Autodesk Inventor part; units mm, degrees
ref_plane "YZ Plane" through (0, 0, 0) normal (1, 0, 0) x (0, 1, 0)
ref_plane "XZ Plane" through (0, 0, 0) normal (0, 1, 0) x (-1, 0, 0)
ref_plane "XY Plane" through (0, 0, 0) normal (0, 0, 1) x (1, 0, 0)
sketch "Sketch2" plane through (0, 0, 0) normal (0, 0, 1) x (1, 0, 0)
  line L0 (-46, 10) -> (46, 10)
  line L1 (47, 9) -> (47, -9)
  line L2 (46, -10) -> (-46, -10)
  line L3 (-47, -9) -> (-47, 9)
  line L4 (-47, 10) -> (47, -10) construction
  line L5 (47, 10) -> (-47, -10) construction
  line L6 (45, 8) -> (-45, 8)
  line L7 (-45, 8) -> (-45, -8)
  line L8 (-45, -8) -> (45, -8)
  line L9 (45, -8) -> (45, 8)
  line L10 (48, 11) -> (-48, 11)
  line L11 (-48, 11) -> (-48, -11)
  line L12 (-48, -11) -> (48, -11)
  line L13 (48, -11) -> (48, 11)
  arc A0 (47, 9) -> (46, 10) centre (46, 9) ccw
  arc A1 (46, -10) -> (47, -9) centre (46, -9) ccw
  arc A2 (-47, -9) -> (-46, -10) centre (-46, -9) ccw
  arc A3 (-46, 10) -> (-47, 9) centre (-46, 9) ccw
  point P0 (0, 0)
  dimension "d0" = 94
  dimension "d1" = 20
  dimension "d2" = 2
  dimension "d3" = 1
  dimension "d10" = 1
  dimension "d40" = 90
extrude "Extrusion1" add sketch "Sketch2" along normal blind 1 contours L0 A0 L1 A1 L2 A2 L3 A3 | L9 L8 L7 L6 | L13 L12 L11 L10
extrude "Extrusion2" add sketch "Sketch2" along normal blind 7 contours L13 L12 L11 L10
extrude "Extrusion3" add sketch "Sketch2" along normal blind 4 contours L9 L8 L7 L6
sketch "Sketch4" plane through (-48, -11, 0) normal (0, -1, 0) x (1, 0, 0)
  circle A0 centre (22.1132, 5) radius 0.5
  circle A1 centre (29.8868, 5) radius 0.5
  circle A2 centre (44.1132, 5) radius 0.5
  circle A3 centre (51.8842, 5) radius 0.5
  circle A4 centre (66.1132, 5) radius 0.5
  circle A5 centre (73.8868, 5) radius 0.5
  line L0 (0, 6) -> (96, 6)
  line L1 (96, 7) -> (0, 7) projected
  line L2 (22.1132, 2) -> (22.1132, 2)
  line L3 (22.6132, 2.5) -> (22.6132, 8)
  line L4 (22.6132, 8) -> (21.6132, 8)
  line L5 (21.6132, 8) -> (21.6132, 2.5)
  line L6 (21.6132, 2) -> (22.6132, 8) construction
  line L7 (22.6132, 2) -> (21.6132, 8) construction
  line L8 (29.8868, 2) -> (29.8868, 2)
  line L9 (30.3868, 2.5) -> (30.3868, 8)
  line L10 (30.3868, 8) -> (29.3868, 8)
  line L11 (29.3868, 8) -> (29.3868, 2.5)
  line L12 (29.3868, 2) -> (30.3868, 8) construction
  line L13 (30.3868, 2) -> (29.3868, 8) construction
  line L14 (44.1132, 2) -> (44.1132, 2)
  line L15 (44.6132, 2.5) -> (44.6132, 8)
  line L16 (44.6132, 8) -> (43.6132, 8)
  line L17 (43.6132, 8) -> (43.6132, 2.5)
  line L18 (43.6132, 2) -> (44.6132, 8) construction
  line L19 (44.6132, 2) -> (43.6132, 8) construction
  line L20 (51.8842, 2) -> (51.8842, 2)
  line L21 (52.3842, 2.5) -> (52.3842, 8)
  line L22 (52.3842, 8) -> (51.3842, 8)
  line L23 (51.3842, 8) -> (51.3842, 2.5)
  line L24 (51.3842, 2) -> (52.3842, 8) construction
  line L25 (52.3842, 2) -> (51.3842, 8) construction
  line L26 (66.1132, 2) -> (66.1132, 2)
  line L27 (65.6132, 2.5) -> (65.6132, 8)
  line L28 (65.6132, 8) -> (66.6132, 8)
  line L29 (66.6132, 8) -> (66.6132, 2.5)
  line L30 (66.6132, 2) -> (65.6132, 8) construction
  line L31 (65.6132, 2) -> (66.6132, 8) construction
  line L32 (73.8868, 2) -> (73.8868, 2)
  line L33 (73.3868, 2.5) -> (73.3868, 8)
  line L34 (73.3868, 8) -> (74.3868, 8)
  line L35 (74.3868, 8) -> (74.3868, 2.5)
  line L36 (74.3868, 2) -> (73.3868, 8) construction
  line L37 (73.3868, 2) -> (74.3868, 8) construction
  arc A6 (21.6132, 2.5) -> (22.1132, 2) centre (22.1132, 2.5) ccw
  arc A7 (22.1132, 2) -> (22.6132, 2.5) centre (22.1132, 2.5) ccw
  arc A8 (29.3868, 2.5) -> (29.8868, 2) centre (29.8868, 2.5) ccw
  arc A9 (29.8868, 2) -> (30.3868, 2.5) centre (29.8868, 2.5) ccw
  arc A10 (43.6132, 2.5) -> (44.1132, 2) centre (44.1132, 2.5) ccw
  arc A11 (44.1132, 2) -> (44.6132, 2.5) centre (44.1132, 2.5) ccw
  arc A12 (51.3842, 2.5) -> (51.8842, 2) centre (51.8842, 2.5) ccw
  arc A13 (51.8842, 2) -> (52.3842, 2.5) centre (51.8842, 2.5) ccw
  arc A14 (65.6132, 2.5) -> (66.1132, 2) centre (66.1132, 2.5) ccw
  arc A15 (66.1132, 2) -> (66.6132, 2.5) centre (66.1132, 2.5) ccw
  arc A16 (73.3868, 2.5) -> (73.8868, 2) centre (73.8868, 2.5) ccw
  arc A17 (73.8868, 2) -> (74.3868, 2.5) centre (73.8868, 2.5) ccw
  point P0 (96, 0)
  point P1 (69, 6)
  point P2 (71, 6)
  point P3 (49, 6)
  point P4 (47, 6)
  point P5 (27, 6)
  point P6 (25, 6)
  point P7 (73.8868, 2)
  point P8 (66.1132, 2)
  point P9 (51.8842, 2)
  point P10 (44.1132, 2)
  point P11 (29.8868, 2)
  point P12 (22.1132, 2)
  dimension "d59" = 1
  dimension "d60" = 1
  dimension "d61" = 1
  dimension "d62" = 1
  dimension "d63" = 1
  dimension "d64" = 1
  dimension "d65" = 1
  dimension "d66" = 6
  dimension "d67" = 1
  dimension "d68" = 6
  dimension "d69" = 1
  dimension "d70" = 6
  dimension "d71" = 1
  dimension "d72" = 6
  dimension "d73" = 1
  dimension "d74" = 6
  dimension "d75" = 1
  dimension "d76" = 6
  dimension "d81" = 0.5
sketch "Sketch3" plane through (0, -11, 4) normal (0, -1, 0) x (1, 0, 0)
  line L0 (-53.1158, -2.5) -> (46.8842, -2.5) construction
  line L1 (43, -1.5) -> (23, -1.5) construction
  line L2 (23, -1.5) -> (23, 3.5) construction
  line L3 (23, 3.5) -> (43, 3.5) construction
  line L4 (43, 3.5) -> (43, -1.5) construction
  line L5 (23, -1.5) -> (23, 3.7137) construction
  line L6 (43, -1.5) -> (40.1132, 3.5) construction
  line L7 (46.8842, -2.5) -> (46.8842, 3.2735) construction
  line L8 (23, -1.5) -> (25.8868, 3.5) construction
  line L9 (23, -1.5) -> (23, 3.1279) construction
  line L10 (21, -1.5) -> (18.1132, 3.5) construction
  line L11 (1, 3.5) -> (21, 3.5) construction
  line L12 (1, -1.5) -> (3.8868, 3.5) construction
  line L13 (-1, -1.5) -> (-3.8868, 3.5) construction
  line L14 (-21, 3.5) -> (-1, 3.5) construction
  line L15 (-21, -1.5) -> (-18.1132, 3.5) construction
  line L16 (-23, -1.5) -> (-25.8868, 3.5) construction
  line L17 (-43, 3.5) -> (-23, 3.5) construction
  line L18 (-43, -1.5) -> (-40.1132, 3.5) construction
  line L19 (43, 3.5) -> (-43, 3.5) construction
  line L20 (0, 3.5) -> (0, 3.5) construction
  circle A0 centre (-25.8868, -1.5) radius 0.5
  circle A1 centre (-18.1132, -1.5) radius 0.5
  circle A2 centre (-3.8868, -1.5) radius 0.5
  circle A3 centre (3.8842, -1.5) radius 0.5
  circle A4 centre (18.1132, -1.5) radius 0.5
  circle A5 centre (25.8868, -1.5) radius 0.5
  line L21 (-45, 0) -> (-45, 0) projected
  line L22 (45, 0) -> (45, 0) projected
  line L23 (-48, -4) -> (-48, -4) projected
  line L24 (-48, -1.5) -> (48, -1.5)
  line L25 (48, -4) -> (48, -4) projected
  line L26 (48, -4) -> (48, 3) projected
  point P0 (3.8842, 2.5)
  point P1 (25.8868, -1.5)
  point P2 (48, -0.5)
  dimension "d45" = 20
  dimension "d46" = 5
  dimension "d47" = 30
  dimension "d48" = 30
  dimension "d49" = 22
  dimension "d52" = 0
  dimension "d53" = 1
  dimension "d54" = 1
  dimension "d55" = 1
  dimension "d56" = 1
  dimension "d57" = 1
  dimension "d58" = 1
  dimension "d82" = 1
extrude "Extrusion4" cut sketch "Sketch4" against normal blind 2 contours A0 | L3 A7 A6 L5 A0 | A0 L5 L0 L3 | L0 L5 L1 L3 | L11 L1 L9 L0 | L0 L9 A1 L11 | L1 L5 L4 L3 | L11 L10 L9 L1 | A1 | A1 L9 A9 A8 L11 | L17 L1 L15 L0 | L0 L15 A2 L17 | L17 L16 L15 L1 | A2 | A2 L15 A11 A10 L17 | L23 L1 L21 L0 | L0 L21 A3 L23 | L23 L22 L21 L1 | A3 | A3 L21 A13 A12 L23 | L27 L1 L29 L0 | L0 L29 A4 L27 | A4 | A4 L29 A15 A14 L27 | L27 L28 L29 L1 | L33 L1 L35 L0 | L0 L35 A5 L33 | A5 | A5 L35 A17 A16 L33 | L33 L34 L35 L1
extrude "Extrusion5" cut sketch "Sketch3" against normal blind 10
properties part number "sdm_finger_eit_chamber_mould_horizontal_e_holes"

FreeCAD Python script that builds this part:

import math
import FreeCAD as App
import Part
import Sketcher

V = App.Vector
Q = App.Units.Quantity

doc = App.newDocument("Part")
params = doc.addObject("Spreadsheet::Sheet", "Params")
for row, (alias, value) in enumerate([
    ("sketch1_width", "96 mm"),
    ("sketch1_height", "22 mm"),
    ("pad1_length", "1 mm"),
    ("sketch2_radius", "1 mm"),
    ("pad2_length", "7 mm"),
    ("sketch3_width", "90 mm"),
    ("sketch3_height", "16 mm"),
    ("pad3_length", "4 mm"),
    ("sketch4_radius", "0.5 mm"),
    ("sketch4_height", "5.5 mm"),
    ("pocket1_length", "2 mm"),
    ("sketch5_diameter", "1 mm"),
    ("pocket2_length", "10 mm"),
], start=1):
    params.set(f"A{row}", alias)
    params.set(f"B{row}", "=" + value)
    params.setAlias(f"B{row}", alias)

body = doc.addObject("PartDesign::Body", "Body")

# Sketch on XY plane
sketch1 = body.newObject("Sketcher::SketchObject", "Sketch")
sketch1.AttachmentSupport = (doc.getObject("XY_Plane"), [""])
sketch1.MapMode = "FlatFace"
sketch1.addGeometry([
    Part.LineSegment(V(48, -11, 0), V(48, 11, 0)),
    Part.LineSegment(V(48, 11, 0), V(-48, 11, 0)),
    Part.LineSegment(V(-48, 11, 0), V(-48, -11, 0)),
    Part.LineSegment(V(-48, -11, 0), V(48, -11, 0)),
], False)
sketch1.addConstraint([
    Sketcher.Constraint("Coincident", 0, 2, 1, 1),
    Sketcher.Constraint("Coincident", 1, 2, 2, 1),
    Sketcher.Constraint("Coincident", 2, 2, 3, 1),
    Sketcher.Constraint("Coincident", 3, 2, 0, 1),
    Sketcher.Constraint("Vertical", 0),
    Sketcher.Constraint("Horizontal", 1),
    Sketcher.Constraint("Vertical", 2),
    Sketcher.Constraint("Horizontal", 3),
    Sketcher.Constraint("Symmetric", 0, 2, 2, 2, -1, 1),
    Sketcher.Constraint("DistanceX", 1, 2, 1, 1, Q("96 mm")),
    Sketcher.Constraint("DistanceY", 0, 1, 0, 2, Q("22 mm")),
])
sketch1.setExpression("Constraints[9]", "Params.sketch1_width")
sketch1.setExpression("Constraints[10]", "Params.sketch1_height")
pad1 = body.newObject("PartDesign::Pad", "Pad")
pad1.Profile = sketch1
pad1.setExpression("Length", "Params.pad1_length")

# Sketch on XY plane
sketch2 = body.newObject("Sketcher::SketchObject", "Sketch001")
sketch2.AttachmentSupport = (doc.getObject("XY_Plane"), [""])
sketch2.MapMode = "FlatFace"
sketch2.addGeometry([
    Part.LineSegment(V(48, -11, 0), V(48, 11, 0)),  # 0
    Part.LineSegment(V(48, 11, 0), V(-48, 11, 0)),  # 1
    Part.LineSegment(V(-48, 11, 0), V(-48, -11, 0)),  # 2
    Part.LineSegment(V(-48, -11, 0), V(48, -11, 0)),  # 3
    Part.ArcOfCircle(Part.Circle(V(-46, 9, 0), V(0, 0, 1), 1), math.radians(90), math.radians(180)),  # 4
    Part.LineSegment(V(-46, 10, 0), V(46, 10, 0)),  # 5
    Part.ArcOfCircle(Part.Circle(V(46, 9, 0), V(0, 0, 1), 1), math.radians(0), math.radians(90)),  # 6
    Part.LineSegment(V(47, 9, 0), V(47, -9, 0)),  # 7
    Part.ArcOfCircle(Part.Circle(V(46, -9, 0), V(0, 0, 1), 1), math.radians(-90), math.radians(0)),  # 8
    Part.LineSegment(V(46, -10, 0), V(-46, -10, 0)),  # 9
    Part.ArcOfCircle(Part.Circle(V(-46, -9, 0), V(0, 0, 1), 1), math.radians(180), math.radians(270)),  # 10
    Part.LineSegment(V(-47, -9, 0), V(-47, 9, 0)),  # 11
], False)
sketch2.addConstraint([
    Sketcher.Constraint("Coincident", 0, 2, 1, 1),
    Sketcher.Constraint("Coincident", 1, 2, 2, 1),
    Sketcher.Constraint("Coincident", 2, 2, 3, 1),
    Sketcher.Constraint("Coincident", 3, 2, 0, 1),
    Sketcher.Constraint("Tangent", 4, 1, 5, 1),
    Sketcher.Constraint("Tangent", 5, 2, 6, 2),
    Sketcher.Constraint("Tangent", 6, 1, 7, 1),
    Sketcher.Constraint("Tangent", 7, 2, 8, 2),
    Sketcher.Constraint("Tangent", 8, 1, 9, 1),
    Sketcher.Constraint("Tangent", 9, 2, 10, 2),
    Sketcher.Constraint("Tangent", 10, 1, 11, 1),
    Sketcher.Constraint("Tangent", 11, 2, 4, 2),
    Sketcher.Constraint("Vertical", 0),
    Sketcher.Constraint("Horizontal", 1),
    Sketcher.Constraint("Vertical", 2),
    Sketcher.Constraint("Horizontal", 3),
    Sketcher.Constraint("Horizontal", 5),
    Sketcher.Constraint("Vertical", 7),
    Sketcher.Constraint("Horizontal", 9),
    Sketcher.Constraint("Vertical", 11),
    Sketcher.Constraint("Equal", 4, 6),
    Sketcher.Constraint("Equal", 6, 8),
    Sketcher.Constraint("Equal", 8, 10),
    Sketcher.Constraint("Symmetric", 4, 3, 8, 3, -1, 1),
    Sketcher.Constraint("Symmetric", 0, 2, 2, 2, -1, 1),
    Sketcher.Constraint("Radius", 4, Q("1 mm")),
    Sketcher.Constraint("DistanceX", 6, 3, 0, 2, Q("2 mm")),
    Sketcher.Constraint("DistanceY", 6, 3, 0, 2, Q("2 mm")),
    Sketcher.Constraint("DistanceY", 8, 3, 0, 2, Q("20 mm")),
    Sketcher.Constraint("DistanceX", 4, 3, 0, 2, Q("94 mm")),
])
sketch2.setExpression("Constraints[25]", "Params.sketch2_radius")
pad2 = body.newObject("PartDesign::Pad", "Pad001")
pad2.Profile = sketch2
pad2.setExpression("Length", "Params.pad2_length")

# Sketch on XY plane
sketch3 = body.newObject("Sketcher::SketchObject", "Sketch002")
sketch3.AttachmentSupport = (doc.getObject("XY_Plane"), [""])
sketch3.MapMode = "FlatFace"
sketch3.addGeometry([
    Part.LineSegment(V(45, -8, 0), V(45, 8, 0)),
    Part.LineSegment(V(45, 8, 0), V(-45, 8, 0)),
    Part.LineSegment(V(-45, 8, 0), V(-45, -8, 0)),
    Part.LineSegment(V(-45, -8, 0), V(45, -8, 0)),
], False)
sketch3.addConstraint([
    Sketcher.Constraint("Coincident", 0, 2, 1, 1),
    Sketcher.Constraint("Coincident", 1, 2, 2, 1),
    Sketcher.Constraint("Coincident", 2, 2, 3, 1),
    Sketcher.Constraint("Coincident", 3, 2, 0, 1),
    Sketcher.Constraint("Vertical", 0),
    Sketcher.Constraint("Horizontal", 1),
    Sketcher.Constraint("Vertical", 2),
    Sketcher.Constraint("Horizontal", 3),
    Sketcher.Constraint("Symmetric", 0, 2, 2, 2, -1, 1),
    Sketcher.Constraint("DistanceX", 1, 2, 1, 1, Q("90 mm")),
    Sketcher.Constraint("DistanceY", 0, 1, 0, 2, Q("16 mm")),
])
sketch3.setExpression("Constraints[9]", "Params.sketch3_width")
sketch3.setExpression("Constraints[10]", "Params.sketch3_height")
pad3 = body.newObject("PartDesign::Pad", "Pad002")
pad3.Profile = sketch3
pad3.setExpression("Length", "Params.pad3_length")

# Sketch on XZ plane
sketch4 = body.newObject("Sketcher::SketchObject", "Sketch003")
sketch4.AttachmentSupport = (doc.getObject("XZ_Plane"), [""])
sketch4.MapMode = "FlatFace"
sketch4.AttachmentOffset = App.Placement(V(0, 0, 11), App.Rotation())
sketch4.addGeometry([
    Part.LineSegment(V(-25.4, 2.5, 0), V(-25.4, 8, 0)),  # 0
    Part.LineSegment(V(-25.4, 8, 0), V(-26.4, 8, 0)),  # 1
    Part.LineSegment(V(-26.4, 8, 0), V(-26.4, 2.5, 0)),  # 2
    Part.ArcOfCircle(Part.Circle(V(-25.9, 2.5, 0), V(0, 0, 1), 0.5), math.radians(180), math.radians(360)),  # 3
    Part.ArcOfCircle(Part.Circle(V(-18.1, 2.5, 0), V(0, 0, 1), 0.5), math.radians(180), math.radians(360)),  # 4
    Part.LineSegment(V(-17.6, 2.5, 0), V(-17.6, 8, 0)),  # 5
    Part.LineSegment(V(-17.6, 8, 0), V(-18.6, 8, 0)),  # 6
    Part.LineSegment(V(-18.6, 8, 0), V(-18.6, 2.5, 0)),  # 7
    Part.ArcOfCircle(Part.Circle(V(-3.9, 2.5, 0), V(0, 0, 1), 0.5), math.radians(180), math.radians(360)),  # 8
    Part.LineSegment(V(-3.4, 2.5, 0), V(-3.4, 8, 0)),  # 9
    Part.LineSegment(V(-3.4, 8, 0), V(-4.4, 8, 0)),  # 10
    Part.LineSegment(V(-4.4, 8, 0), V(-4.4, 2.5, 0)),  # 11
    Part.ArcOfCircle(Part.Circle(V(3.9, 2.5, 0), V(0, 0, 1), 0.5), math.radians(180), math.radians(360)),  # 12
    Part.LineSegment(V(4.4, 2.5, 0), V(4.4, 8, 0)),  # 13
    Part.LineSegment(V(4.4, 8, 0), V(3.4, 8, 0)),  # 14
    Part.LineSegment(V(3.4, 8, 0), V(3.4, 2.5, 0)),  # 15
    Part.ArcOfCircle(Part.Circle(V(18.1, 2.5, 0), V(0, 0, 1), 0.5), math.radians(180), math.radians(360)),  # 16
    Part.LineSegment(V(18.6, 2.5, 0), V(18.6, 8, 0)),  # 17
    Part.LineSegment(V(18.6, 8, 0), V(17.6, 8, 0)),  # 18
    Part.LineSegment(V(17.6, 8, 0), V(17.6, 2.5, 0)),  # 19
    Part.ArcOfCircle(Part.Circle(V(25.9, 2.5, 0), V(0, 0, 1), 0.5), math.radians(180), math.radians(360)),  # 20
    Part.LineSegment(V(26.4, 2.5, 0), V(26.4, 8, 0)),  # 21
    Part.LineSegment(V(26.4, 8, 0), V(25.4, 8, 0)),  # 22
    Part.LineSegment(V(25.4, 8, 0), V(25.4, 2.5, 0)),  # 23
], False)
sketch4.addConstraint([
    Sketcher.Constraint("Coincident", 0, 2, 1, 1),
    Sketcher.Constraint("Coincident", 1, 2, 2, 1),
    Sketcher.Constraint("Tangent", 2, 2, 3, 1),
    Sketcher.Constraint("Tangent", 3, 2, 0, 1),
    Sketcher.Constraint("Tangent", 4, 2, 5, 1),
    Sketcher.Constraint("Coincident", 5, 2, 6, 1),
    Sketcher.Constraint("Coincident", 6, 2, 7, 1),
    Sketcher.Constraint("Tangent", 7, 2, 4, 1),
    Sketcher.Constraint("Tangent", 8, 2, 9, 1),
    Sketcher.Constraint("Coincident", 9, 2, 10, 1),
    Sketcher.Constraint("Coincident", 10, 2, 11, 1),
    Sketcher.Constraint("Tangent", 11, 2, 8, 1),
    Sketcher.Constraint("Tangent", 12, 2, 13, 1),
    Sketcher.Constraint("Coincident", 13, 2, 14, 1),
    Sketcher.Constraint("Coincident", 14, 2, 15, 1),
    Sketcher.Constraint("Tangent", 15, 2, 12, 1),
    Sketcher.Constraint("Tangent", 16, 2, 17, 1),
    Sketcher.Constraint("Coincident", 17, 2, 18, 1),
    Sketcher.Constraint("Coincident", 18, 2, 19, 1),
    Sketcher.Constraint("Tangent", 19, 2, 16, 1),
    Sketcher.Constraint("Tangent", 20, 2, 21, 1),
    Sketcher.Constraint("Coincident", 21, 2, 22, 1),
    Sketcher.Constraint("Coincident", 22, 2, 23, 1),
    Sketcher.Constraint("Tangent", 23, 2, 20, 1),
    Sketcher.Constraint("Vertical", 0),
    Sketcher.Constraint("Horizontal", 1),
    Sketcher.Constraint("Vertical", 2),
    Sketcher.Constraint("Vertical", 5),
    Sketcher.Constraint("Horizontal", 6),
    Sketcher.Constraint("Vertical", 7),
    Sketcher.Constraint("Vertical", 9),
    Sketcher.Constraint("Horizontal", 10),
    Sketcher.Constraint("Vertical", 11),
    Sketcher.Constraint("Vertical", 13),
    Sketcher.Constraint("Horizontal", 14),
    Sketcher.Constraint("Vertical", 15),
    Sketcher.Constraint("Vertical", 17),
    Sketcher.Constraint("Horizontal", 18),
    Sketcher.Constraint("Vertical", 19),
    Sketcher.Constraint("Vertical", 21),
    Sketcher.Constraint("Horizontal", 22),
    Sketcher.Constraint("Vertical", 23),
    Sketcher.Constraint("Equal", 3, 4),
    Sketcher.Constraint("Equal", 4, 8),
    Sketcher.Constraint("Equal", 8, 12),
    Sketcher.Constraint("Equal", 12, 16),
    Sketcher.Constraint("Equal", 16, 20),
    Sketcher.Constraint("Symmetric", 4, 3, 16, 3, -2),
    Sketcher.Constraint("Symmetric", 3, 3, 20, 3, -2),
    Sketcher.Constraint("Horizontal", 3, 3, 4, 3),
    Sketcher.Constraint("Horizontal", 4, 3, 8, 3),
    Sketcher.Constraint("Horizontal", 8, 3, 12, 3),
    Sketcher.Constraint("Horizontal", 1, 2, 5, 2),
    Sketcher.Constraint("Horizontal", 6, 2, 9, 2),
    Sketcher.Constraint("Horizontal", 10, 2, 13, 2),
    Sketcher.Constraint("Horizontal", 14, 2, 17, 2),
    Sketcher.Constraint("Horizontal", 18, 2, 21, 2),
    Sketcher.Constraint("Radius", 3, Q("0.5 mm")),
    Sketcher.Constraint("DistanceY", 0, 1, 0, 2, Q("5.5 mm")),
    Sketcher.Constraint("DistanceY", -1, 1, 0, 2, Q("8 mm")),
    Sketcher.Constraint("DistanceX", 3, 3, 8, 3, Q("22 mm")),
    Sketcher.Constraint("DistanceX", 8, 3, 16, 3, Q("22 mm")),
    Sketcher.Constraint("DistanceX", 8, 3, 12, 3, Q("7.771 mm")),
    Sketcher.Constraint("DistanceX", 3, 3, -1, 1, Q("25.8868 mm")),
])
sketch4.setExpression("Constraints[57]", "Params.sketch4_radius")
sketch4.setExpression("Constraints[58]", "Params.sketch4_height")
pocket1 = body.newObject("PartDesign::Pocket", "Pocket")
pocket1.Profile = sketch4
pocket1.setExpression("Length", "Params.pocket1_length")

# Sketch on XZ plane
sketch5 = body.newObject("Sketcher::SketchObject", "Sketch004")
sketch5.AttachmentSupport = (doc.getObject("XZ_Plane"), [""])
sketch5.MapMode = "FlatFace"
sketch5.AttachmentOffset = App.Placement(V(0, 0, 11), App.Rotation())
sketch5.addGeometry([
    Part.Circle(V(-25.9, 2.5, 0), V(0, 0, 1), 0.5),  # 0
    Part.Circle(V(25.9, 2.5, 0), V(0, 0, 1), 0.5),  # 1
    Part.Circle(V(18.1, 2.5, 0), V(0, 0, 1), 0.5),  # 2
    Part.Circle(V(3.9, 2.5, 0), V(0, 0, 1), 0.5),  # 3
    Part.Circle(V(-3.9, 2.5, 0), V(0, 0, 1), 0.5),  # 4
    Part.Circle(V(-18.1, 2.5, 0), V(0, 0, 1), 0.5),  # 5
], False)
sketch5.addConstraint([
    Sketcher.Constraint("Equal", 0, 1),
    Sketcher.Constraint("Equal", 1, 2),
    Sketcher.Constraint("Equal", 2, 3),
    Sketcher.Constraint("Equal", 3, 4),
    Sketcher.Constraint("Equal", 4, 5),
    Sketcher.Constraint("Symmetric", 0, 3, 1, 3, -2),
    Sketcher.Constraint("Symmetric", 2, 3, 5, 3, -2),
    Sketcher.Constraint("Horizontal", 1, 3, 2, 3),
    Sketcher.Constraint("Horizontal", 2, 3, 3, 3),
    Sketcher.Constraint("Horizontal", 3, 3, 4, 3),
    Sketcher.Constraint("Diameter", 0, Q("1 mm")),
    Sketcher.Constraint("DistanceX", 0, 3, 4, 3, Q("22 mm")),
    Sketcher.Constraint("DistanceX", 4, 3, 2, 3, Q("22 mm")),
    Sketcher.Constraint("DistanceY", -1, 1, 0, 3, Q("2.5 mm")),
    Sketcher.Constraint("DistanceX", 3, 3, 2, 3, Q("14.229 mm")),
    Sketcher.Constraint("DistanceX", 0, 3, -1, 1, Q("25.8868 mm")),
])
sketch5.setExpression("Constraints[10]", "Params.sketch5_diameter")
pocket2 = body.newObject("PartDesign::Pocket", "Pocket001")
pocket2.Profile = sketch5
pocket2.setExpression("Length", "Params.pocket2_length")

doc.recompute()
